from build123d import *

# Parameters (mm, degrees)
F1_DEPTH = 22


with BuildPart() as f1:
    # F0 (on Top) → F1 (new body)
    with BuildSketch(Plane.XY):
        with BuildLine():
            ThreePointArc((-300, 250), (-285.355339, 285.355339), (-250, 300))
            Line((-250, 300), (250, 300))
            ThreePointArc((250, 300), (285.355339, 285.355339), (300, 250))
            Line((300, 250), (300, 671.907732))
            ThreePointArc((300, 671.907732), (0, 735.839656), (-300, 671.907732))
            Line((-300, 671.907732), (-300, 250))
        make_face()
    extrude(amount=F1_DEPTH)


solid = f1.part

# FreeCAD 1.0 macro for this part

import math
import FreeCAD as App
import Part
import Sketcher

V = App.Vector
Q = App.Units.Quantity

doc = App.newDocument("Part")
body = doc.addObject("PartDesign::Body", "Body")

# Sketch on XY plane
sketch1 = body.newObject("Sketcher::SketchObject", "Sketch")
sketch1.AttachmentSupport = (doc.getObject("XY_Plane"), [""])
sketch1.MapMode = "FlatFace"
sketch1.addGeometry(Part.ArcOfCircle(Part.Circle(V(-250, 250, 0), V(0, 0, 1), 50), math.radians(90), math.radians(180)), False)
sketch1.addGeometry(Part.LineSegment(V(-250, 300, 0), V(250, 300, 0)), False)
sketch1.addGeometry(Part.ArcOfCircle(Part.Circle(V(250, 250, 0), V(0, 0, 1), 50), math.radians(0), math.radians(90)), False)
sketch1.addGeometry(Part.LineSegment(V(300, 250, 0), V(300, 671.907732, 0)), False)
sketch1.addGeometry(Part.ArcOfCircle(Part.Circle(V(0, -0.000008, 0), V(0, 0, 1), 735.839664), math.radians(65.939722), math.radians(114.060278)), False)
sketch1.addGeometry(Part.LineSegment(V(-300, 671.907732, 0), V(-300, 250, 0)), False)
sketch1.addConstraint(Sketcher.Constraint("Tangent", 0, 1, 1, 1))
sketch1.addConstraint(Sketcher.Constraint("Tangent", 1, 2, 2, 2))
sketch1.addConstraint(Sketcher.Constraint("Tangent", 2, 1, 3, 1))
sketch1.addConstraint(Sketcher.Constraint("Coincident", 3, 2, 4, 1))
sketch1.addConstraint(Sketcher.Constraint("Coincident", 4, 2, 5, 1))
sketch1.addConstraint(Sketcher.Constraint("Tangent", 5, 2, 0, 2))
sketch1.addConstraint(Sketcher.Constraint("Horizontal", 1))
sketch1.addConstraint(Sketcher.Constraint("Vertical", 3))
sketch1.addConstraint(Sketcher.Constraint("Vertical", 5))
sketch1.addConstraint(Sketcher.Constraint("Coincident", 4, 3, -1, 1))
sketch1.addConstraint(Sketcher.Constraint("Equal", 0, 2))
sketch1.addConstraint(Sketcher.Constraint("Equal", 3, 5))
sketch1.addConstraint(Sketcher.Constraint("Radius", 0, Q("50 mm")))
sketch1.addConstraint(Sketcher.Constraint("DistanceX", 1, 1, 1, 2, Q("500 mm")))
sketch1.addConstraint(Sketcher.Constraint("DistanceY", -1, 1, 0, 3, Q("250 mm")))
sketch1.addConstraint(Sketcher.Constraint("Radius", 4, Q("735.839664 mm")))
pad1 = body.newObject("PartDesign::Pad", "Pad")
pad1.Profile = sketch1
pad1.Length = 22

doc.recompute()
